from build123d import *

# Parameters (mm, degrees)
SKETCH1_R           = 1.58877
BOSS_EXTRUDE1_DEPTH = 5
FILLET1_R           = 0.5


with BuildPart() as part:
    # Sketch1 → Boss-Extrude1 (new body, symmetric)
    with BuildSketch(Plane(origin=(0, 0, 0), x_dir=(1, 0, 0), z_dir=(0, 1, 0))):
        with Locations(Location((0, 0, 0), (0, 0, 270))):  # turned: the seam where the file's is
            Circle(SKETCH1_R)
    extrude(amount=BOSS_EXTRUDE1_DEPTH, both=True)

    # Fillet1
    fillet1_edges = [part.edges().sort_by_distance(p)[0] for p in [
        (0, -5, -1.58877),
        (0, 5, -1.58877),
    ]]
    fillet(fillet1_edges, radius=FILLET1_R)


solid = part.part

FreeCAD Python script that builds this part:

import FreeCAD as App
import Part
import Sketcher

V = App.Vector
Q = App.Units.Quantity


def edges_at(feature, points):
    """Names of the edges that pass closest to the given points."""
    edges = feature.Shape.Edges
    near = lambda p: min(range(len(edges)), key=lambda i: edges[i].distToShape(Part.Vertex(*p))[0])
    return sorted({f"Edge{near(p) + 1}" for p in points})

doc = App.newDocument("Part")
body = doc.addObject("PartDesign::Body", "Body")

sketch1 = body.newObject("Sketcher::SketchObject", "Sketch")
sketch1.AttachmentSupport = (doc.getObject("XZ_Plane"), [""])
sketch1.MapMode = "FlatFace"
sketch1.addGeometry(Part.Circle(V(0, 0, 0), V(0, 0, 1), 1.6), False)
sketch1.addConstraint([
    Sketcher.Constraint("Coincident", 0, 3, -1, 1),
    Sketcher.Constraint("Diameter", 0, Q("3.17754 mm")),
])
pad1 = body.newObject("PartDesign::Pad", "Pad")
pad1.Profile = sketch1
pad1.Length = 10
pad1.Midplane = True
doc.recompute()

fillet = body.newObject("PartDesign::Fillet", "Fillet")
fillet.Base = (pad1, edges_at(pad1, [(0, -5, -1.589), (0, 5, -1.589)]))
fillet.Radius = 0.5

doc.recompute()
